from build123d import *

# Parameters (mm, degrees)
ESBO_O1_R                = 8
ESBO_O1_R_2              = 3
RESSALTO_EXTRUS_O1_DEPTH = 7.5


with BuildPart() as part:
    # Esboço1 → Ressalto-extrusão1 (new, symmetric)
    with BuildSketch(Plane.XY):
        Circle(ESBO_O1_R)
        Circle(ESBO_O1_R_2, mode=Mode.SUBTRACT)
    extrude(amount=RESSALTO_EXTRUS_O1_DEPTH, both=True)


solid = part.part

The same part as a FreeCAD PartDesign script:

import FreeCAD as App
import Part
import Sketcher
Q = App.Units.Quantity

doc = App.newDocument("Part")
body = doc.addObject("PartDesign::Body", "Body")

# Sketch on XY plane
sketch1 = doc.addObject("Sketcher::SketchObject", "Sketch")
body.addObject(sketch1)
sketch1.AttachmentSupport = (doc.XY_Plane, [""])
sketch1.MapMode = "FlatFace"
sketch1.addGeometry(Part.Circle(App.Vector(0, 0, 0), App.Vector(0, 0, 1), 8), False)
sketch1.addGeometry(Part.Circle(App.Vector(0, 0, 0), App.Vector(0, 0, 1), 3), False)
sketch1.addConstraint(Sketcher.Constraint("Coincident", 0, 3, -1, 1))
sketch1.addConstraint(Sketcher.Constraint("Coincident", 1, 3, -1, 1))
sketch1.addConstraint(Sketcher.Constraint("Diameter", 0, Q("16 mm")))
sketch1.addConstraint(Sketcher.Constraint("Diameter", 1, Q("6 mm")))
pad1 = doc.addObject("PartDesign::Pad", "Pad")
body.addObject(pad1)
pad1.Profile = sketch1
pad1.Length = 15
pad1.Midplane = True

doc.recompute()
